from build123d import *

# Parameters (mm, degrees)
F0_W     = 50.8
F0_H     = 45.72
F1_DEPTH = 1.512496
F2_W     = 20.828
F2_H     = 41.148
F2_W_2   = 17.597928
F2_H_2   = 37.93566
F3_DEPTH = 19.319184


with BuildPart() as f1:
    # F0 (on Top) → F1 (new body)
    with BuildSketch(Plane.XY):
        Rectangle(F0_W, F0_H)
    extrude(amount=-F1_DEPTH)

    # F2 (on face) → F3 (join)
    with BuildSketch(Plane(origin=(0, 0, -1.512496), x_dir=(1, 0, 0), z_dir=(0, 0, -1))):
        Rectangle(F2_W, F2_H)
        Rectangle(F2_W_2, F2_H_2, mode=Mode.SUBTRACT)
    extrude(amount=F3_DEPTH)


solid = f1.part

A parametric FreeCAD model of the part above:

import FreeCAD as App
import Part
import Sketcher

V = App.Vector
Q = App.Units.Quantity


def add_polygon(sketch, points):
    """Adds a closed chain of lines whose ends are joined by coincident constraints."""
    first, n = sketch.GeometryCount, len(points)
    for a, b in zip(points, points[1:] + points[:1]):
        sketch.addGeometry(Part.LineSegment(App.Vector(*a, 0), App.Vector(*b, 0)), False)
    for i in range(n):
        sketch.addConstraint(Sketcher.Constraint("Coincident", first + i, 2, first + (i + 1) % n, 1))

doc = App.newDocument("Part")
body = doc.addObject("PartDesign::Body", "Body")

# Sketch on XY plane
sketch1 = body.newObject("Sketcher::SketchObject", "Sketch")
sketch1.AttachmentSupport = (doc.getObject("XY_Plane"), [""])
sketch1.MapMode = "FlatFace"
add_polygon(sketch1, [(-25.4, 22.86), (-25.4, -22.86), (25.4, -22.86), (25.4, 22.86)])  # lines 0-3
sketch1.addConstraint(Sketcher.Constraint("Vertical", 0))
sketch1.addConstraint(Sketcher.Constraint("Horizontal", 1))
sketch1.addConstraint(Sketcher.Constraint("Vertical", 2))
sketch1.addConstraint(Sketcher.Constraint("Horizontal", 3))
sketch1.addConstraint(Sketcher.Constraint("Symmetric", 0, 2, 2, 2, -1, 1))
sketch1.addConstraint(Sketcher.Constraint("DistanceX", 1, 1, 1, 2, Q("2 in")))
sketch1.addConstraint(Sketcher.Constraint("DistanceY", 0, 2, 0, 1, Q("1.8 in")))
pad1 = body.newObject("PartDesign::Pad", "Pad")
pad1.Profile = sketch1
pad1.Length = 1.512496
pad1.Reversed = True

# Sketch on XY plane
sketch2 = body.newObject("Sketcher::SketchObject", "Sketch001")
sketch2.AttachmentSupport = (doc.getObject("XY_Plane"), [""])
sketch2.MapMode = "FlatFace"
sketch2.AttachmentOffset = App.Placement(V(0, 0, -1.512496), App.Rotation())
add_polygon(sketch2, [(-10.414, -20.574), (-10.414, 20.574), (10.414, 20.574), (10.414, -20.574)])  # lines 0-3
add_polygon(sketch2, [(8.798964, 18.96783), (-8.798964, 18.96783), (-8.798964, -18.96783), (8.798964, -18.96783)])  # lines 4-7
sketch2.addConstraint(Sketcher.Constraint("Vertical", 0))
sketch2.addConstraint(Sketcher.Constraint("Horizontal", 1))
sketch2.addConstraint(Sketcher.Constraint("Vertical", 2))
sketch2.addConstraint(Sketcher.Constraint("Horizontal", 3))
sketch2.addConstraint(Sketcher.Constraint("Horizontal", 4))
sketch2.addConstraint(Sketcher.Constraint("Vertical", 5))
sketch2.addConstraint(Sketcher.Constraint("Horizontal", 6))
sketch2.addConstraint(Sketcher.Constraint("Vertical", 7))
sketch2.addConstraint(Sketcher.Constraint("Symmetric", 0, 2, 2, 2, -1, 1))
sketch2.addConstraint(Sketcher.Constraint("Symmetric", 4, 2, 6, 2, -1, 1))
sketch2.addConstraint(Sketcher.Constraint("DistanceX", 1, 1, 1, 2, Q("0.82 in")))
sketch2.addConstraint(Sketcher.Constraint("DistanceY", 0, 1, 0, 2, Q("1.62 in")))
sketch2.addConstraint(Sketcher.Constraint("DistanceY", 5, 2, 5, 1, Q("37.93566 mm")))
sketch2.addConstraint(Sketcher.Constraint("DistanceX", 4, 2, 4, 1, Q("17.597928 mm")))
pad2 = body.newObject("PartDesign::Pad", "Pad001")
pad2.Profile = sketch2
pad2.Length = 19.319184
pad2.Reversed = True

doc.recompute()
